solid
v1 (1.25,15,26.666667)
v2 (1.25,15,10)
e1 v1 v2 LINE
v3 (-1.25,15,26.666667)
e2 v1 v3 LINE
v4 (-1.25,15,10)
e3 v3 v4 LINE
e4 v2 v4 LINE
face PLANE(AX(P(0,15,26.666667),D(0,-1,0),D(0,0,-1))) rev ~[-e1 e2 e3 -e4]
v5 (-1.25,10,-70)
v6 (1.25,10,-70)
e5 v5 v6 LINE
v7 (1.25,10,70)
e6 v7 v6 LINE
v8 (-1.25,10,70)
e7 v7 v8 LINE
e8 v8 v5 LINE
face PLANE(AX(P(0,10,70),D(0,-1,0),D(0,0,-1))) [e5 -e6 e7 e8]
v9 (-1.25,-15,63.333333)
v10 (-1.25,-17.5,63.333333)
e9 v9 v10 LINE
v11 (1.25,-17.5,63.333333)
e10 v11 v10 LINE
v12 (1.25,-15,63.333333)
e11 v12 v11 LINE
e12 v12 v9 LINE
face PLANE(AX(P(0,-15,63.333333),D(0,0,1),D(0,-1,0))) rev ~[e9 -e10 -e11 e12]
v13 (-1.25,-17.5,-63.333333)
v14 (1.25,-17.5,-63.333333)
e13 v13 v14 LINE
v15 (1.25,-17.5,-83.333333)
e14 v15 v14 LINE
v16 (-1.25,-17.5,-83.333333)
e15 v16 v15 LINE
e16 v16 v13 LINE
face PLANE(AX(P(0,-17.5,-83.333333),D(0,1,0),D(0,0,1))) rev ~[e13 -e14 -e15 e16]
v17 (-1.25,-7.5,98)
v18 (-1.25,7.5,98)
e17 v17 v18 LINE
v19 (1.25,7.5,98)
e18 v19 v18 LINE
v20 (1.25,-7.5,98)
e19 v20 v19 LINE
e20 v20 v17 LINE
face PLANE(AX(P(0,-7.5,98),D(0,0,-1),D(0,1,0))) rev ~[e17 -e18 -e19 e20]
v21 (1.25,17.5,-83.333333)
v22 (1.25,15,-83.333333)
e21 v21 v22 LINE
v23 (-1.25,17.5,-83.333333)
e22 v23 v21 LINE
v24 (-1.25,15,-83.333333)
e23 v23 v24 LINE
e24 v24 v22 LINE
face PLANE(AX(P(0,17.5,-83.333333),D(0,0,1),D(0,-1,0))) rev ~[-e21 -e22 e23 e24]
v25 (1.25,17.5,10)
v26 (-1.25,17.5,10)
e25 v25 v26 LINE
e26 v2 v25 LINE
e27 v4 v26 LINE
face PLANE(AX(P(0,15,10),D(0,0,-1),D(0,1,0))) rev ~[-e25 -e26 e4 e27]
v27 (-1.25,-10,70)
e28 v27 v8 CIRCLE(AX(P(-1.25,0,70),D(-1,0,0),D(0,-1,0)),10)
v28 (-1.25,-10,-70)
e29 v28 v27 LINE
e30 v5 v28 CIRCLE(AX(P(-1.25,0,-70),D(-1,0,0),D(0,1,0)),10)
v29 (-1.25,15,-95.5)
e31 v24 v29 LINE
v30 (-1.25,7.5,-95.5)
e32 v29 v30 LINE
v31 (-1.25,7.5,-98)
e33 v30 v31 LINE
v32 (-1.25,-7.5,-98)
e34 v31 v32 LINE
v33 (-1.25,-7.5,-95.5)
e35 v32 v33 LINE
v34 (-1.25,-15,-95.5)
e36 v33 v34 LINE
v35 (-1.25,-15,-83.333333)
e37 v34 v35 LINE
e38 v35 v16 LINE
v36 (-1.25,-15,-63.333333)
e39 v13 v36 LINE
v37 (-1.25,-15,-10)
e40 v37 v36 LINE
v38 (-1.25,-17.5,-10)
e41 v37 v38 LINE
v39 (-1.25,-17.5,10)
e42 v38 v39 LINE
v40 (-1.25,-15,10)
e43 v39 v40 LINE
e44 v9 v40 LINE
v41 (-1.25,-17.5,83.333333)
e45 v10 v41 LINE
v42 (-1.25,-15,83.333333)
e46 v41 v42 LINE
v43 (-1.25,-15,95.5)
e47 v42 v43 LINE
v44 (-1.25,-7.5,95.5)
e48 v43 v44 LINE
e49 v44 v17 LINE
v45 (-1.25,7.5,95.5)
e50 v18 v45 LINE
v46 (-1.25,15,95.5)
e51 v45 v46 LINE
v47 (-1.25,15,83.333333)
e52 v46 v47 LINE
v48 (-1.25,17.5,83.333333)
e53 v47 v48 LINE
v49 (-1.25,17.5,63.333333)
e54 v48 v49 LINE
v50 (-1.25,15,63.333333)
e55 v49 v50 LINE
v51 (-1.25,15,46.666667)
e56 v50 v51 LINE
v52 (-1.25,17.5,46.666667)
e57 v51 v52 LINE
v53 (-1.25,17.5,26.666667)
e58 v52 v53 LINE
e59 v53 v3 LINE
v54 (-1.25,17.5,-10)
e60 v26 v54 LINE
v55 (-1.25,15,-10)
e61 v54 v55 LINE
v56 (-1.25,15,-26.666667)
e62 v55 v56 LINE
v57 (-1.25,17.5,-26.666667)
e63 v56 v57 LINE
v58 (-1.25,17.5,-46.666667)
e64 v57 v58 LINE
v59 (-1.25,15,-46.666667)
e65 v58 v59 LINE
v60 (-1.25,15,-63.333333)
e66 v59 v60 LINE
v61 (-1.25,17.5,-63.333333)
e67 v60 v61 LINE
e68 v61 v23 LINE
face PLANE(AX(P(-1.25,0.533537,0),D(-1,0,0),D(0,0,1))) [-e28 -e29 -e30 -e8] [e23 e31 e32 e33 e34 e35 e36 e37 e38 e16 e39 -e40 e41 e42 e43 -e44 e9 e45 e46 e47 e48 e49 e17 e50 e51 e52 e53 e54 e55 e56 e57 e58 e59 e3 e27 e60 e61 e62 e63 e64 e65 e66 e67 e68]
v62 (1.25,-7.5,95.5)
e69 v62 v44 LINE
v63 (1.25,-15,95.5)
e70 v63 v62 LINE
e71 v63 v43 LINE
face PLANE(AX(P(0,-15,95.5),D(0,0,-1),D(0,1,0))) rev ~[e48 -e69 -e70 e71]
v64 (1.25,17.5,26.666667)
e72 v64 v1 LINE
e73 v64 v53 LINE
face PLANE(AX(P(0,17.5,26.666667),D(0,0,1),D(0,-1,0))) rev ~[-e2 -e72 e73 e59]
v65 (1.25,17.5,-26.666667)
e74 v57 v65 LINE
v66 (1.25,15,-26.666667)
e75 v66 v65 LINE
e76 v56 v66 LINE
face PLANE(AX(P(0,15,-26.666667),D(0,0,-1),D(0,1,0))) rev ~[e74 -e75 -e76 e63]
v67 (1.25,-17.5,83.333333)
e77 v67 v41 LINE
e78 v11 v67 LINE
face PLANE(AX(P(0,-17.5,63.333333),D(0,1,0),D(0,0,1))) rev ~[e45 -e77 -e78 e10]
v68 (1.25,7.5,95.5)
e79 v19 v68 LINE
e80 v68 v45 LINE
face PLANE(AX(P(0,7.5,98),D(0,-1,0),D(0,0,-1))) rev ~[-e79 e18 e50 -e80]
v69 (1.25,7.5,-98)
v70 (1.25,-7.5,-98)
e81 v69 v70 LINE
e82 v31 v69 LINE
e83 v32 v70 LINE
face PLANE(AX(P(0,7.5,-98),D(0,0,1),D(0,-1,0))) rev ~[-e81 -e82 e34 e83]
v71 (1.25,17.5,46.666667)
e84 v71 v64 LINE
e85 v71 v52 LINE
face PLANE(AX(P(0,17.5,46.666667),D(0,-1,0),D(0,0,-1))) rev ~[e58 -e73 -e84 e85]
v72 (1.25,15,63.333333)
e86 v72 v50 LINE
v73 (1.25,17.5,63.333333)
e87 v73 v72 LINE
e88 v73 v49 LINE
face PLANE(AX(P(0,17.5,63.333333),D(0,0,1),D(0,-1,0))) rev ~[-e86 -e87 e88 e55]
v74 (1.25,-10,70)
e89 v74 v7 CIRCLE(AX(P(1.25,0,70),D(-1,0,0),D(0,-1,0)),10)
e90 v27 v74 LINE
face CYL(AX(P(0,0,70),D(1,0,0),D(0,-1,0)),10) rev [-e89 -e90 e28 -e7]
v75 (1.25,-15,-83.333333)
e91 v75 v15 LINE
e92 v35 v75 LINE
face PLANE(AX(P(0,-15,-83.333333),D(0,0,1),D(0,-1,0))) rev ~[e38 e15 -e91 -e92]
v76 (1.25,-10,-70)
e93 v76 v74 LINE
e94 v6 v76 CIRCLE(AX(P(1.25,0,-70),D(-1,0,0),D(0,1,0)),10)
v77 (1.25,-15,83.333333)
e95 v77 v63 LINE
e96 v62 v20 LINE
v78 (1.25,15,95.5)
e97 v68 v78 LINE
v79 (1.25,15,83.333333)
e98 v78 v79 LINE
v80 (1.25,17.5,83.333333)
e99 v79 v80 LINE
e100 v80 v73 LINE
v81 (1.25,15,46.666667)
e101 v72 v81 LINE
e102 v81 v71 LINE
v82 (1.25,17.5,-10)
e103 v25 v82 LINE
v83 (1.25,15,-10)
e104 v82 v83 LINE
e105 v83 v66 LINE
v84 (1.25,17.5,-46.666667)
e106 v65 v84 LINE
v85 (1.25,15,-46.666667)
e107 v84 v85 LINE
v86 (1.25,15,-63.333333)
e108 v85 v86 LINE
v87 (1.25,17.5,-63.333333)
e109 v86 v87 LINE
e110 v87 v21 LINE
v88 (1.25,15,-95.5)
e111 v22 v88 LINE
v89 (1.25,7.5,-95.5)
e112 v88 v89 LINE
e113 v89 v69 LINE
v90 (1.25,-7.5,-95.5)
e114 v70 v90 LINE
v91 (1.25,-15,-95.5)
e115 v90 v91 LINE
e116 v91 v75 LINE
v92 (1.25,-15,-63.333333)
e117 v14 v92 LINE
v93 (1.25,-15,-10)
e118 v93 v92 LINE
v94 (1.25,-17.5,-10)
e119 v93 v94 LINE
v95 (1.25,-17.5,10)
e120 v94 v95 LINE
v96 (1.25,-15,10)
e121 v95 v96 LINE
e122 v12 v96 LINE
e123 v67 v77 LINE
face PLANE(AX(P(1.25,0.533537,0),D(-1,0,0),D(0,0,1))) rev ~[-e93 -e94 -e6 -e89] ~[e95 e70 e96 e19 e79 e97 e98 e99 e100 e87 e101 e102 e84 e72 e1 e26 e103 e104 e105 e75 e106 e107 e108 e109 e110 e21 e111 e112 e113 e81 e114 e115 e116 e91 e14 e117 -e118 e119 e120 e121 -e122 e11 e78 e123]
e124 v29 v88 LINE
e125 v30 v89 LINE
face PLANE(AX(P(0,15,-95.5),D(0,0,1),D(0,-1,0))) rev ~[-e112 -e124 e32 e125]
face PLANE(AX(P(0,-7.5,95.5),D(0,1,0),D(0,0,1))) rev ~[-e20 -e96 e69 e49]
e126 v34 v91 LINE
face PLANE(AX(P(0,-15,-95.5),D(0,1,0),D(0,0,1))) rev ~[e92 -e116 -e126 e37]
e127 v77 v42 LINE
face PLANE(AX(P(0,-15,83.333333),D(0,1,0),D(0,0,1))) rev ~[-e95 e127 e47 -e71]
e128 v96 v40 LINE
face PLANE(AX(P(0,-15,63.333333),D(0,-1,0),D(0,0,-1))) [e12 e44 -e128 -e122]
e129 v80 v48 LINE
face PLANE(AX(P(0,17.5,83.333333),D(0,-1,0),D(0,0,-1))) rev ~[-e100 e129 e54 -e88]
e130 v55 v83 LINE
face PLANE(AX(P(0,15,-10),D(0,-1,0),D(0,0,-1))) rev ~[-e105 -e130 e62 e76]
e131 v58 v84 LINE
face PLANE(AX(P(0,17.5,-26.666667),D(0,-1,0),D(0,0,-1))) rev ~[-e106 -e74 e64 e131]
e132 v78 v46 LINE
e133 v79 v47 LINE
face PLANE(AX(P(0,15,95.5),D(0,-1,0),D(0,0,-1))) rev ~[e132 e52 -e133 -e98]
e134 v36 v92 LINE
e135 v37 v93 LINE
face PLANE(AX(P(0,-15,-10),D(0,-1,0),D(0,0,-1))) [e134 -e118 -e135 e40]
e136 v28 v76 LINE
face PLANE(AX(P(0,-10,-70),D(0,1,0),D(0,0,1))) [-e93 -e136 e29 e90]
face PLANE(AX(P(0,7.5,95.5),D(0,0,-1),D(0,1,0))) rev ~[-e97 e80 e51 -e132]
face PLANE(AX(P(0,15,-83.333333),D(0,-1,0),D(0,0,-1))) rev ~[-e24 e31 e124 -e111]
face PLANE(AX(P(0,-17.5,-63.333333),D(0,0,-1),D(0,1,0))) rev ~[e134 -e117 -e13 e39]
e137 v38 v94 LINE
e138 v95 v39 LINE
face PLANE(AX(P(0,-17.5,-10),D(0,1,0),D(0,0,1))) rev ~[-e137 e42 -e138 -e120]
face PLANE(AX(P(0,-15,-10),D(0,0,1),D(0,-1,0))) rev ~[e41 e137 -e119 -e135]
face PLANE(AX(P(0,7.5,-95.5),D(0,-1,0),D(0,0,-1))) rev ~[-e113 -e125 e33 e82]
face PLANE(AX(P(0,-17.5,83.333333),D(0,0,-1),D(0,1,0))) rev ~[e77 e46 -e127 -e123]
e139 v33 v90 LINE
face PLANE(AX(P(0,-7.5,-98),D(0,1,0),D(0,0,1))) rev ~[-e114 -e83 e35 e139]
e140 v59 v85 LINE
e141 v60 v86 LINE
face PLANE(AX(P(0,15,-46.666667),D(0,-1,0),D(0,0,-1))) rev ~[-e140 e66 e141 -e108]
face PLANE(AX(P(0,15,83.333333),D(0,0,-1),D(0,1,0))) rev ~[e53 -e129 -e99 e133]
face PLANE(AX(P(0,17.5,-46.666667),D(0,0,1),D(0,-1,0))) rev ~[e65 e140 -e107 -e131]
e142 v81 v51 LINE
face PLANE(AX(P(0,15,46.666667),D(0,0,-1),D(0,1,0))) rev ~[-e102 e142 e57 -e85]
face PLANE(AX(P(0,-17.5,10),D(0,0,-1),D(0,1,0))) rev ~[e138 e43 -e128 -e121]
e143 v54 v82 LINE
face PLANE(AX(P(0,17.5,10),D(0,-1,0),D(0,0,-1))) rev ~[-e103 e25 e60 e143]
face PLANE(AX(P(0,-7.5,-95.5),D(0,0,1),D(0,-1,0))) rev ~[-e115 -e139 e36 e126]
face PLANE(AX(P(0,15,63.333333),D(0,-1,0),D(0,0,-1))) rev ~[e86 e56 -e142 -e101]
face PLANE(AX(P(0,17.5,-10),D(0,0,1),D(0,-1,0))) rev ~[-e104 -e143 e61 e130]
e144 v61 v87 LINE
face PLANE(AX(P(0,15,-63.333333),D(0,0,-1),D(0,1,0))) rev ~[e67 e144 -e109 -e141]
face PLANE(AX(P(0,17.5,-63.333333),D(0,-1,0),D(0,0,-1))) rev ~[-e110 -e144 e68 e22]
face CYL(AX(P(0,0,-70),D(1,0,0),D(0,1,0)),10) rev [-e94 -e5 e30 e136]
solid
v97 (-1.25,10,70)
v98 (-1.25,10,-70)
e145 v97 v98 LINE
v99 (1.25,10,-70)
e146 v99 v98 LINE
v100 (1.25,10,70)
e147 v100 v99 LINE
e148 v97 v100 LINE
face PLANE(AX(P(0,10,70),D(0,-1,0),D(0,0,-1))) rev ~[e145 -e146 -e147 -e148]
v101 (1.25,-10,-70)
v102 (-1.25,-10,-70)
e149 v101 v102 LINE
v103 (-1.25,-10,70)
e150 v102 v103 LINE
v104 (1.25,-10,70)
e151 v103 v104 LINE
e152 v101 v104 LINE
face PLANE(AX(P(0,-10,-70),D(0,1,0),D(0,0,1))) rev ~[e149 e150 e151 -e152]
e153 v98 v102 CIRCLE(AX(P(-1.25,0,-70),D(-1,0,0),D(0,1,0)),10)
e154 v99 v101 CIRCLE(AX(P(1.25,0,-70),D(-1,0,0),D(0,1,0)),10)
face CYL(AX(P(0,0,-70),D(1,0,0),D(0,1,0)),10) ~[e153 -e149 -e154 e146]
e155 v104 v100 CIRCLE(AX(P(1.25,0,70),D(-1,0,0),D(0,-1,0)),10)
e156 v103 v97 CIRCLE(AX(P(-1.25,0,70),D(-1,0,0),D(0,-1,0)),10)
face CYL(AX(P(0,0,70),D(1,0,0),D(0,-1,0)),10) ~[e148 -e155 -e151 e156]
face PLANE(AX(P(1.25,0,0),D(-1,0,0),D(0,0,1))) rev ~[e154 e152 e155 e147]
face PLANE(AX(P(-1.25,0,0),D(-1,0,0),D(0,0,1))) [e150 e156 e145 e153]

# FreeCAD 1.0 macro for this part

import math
import FreeCAD as App
import Part
import Sketcher
from FreeCAD import Vector


def add_polygon(sketch, points):
    """Adds a closed chain of lines whose ends are joined by coincident constraints."""
    first, n = sketch.GeometryCount, len(points)
    for a, b in zip(points, points[1:] + points[:1]):
        sketch.addGeometry(Part.LineSegment(App.Vector(*a, 0), App.Vector(*b, 0)), False)
    for i in range(n):
        sketch.addConstraint(Sketcher.Constraint("Coincident", first + i, 2, first + (i + 1) % n, 1))

doc = App.newDocument("Part")
body = doc.addObject("PartDesign::Body", "Body")

# Sketch on YZ plane
sketch1 = doc.addObject("Sketcher::SketchObject", "Sketch")
body.addObject(sketch1)
sketch1.AttachmentSupport = (doc.YZ_Plane, [""])
sketch1.MapMode = "FlatFace"
add_polygon(sketch1, [(-17.5, 10), (-17.5, -10), (-15, -10), (-15, -63.333333), (-17.5, -63.333333), (-17.5, -83.333333), (-15, -83.333333), (-15, -95.5), (-7.5, -95.5), (-7.5, -98), (7.5, -98), (7.5, -95.5), (15, -95.5), (15, -83.333333), (17.5, -83.333333), (17.5, -63.333333), (15, -63.333333), (15, -46.666667), (17.5, -46.666667), (17.5, -26.666667), (15, -26.666667), (15, -10), (17.5, -10), (17.5, 10), (15, 10), (15, 26.666667), (17.5, 26.666667), (17.5, 46.666667), (15, 46.666667), (15, 63.333333), (17.5, 63.333333), (17.5, 83.333333), (15, 83.333333), (15, 95.5), (7.5, 95.5), (7.5, 98), (-7.5, 98), (-7.5, 95.5), (-15, 95.5), (-15, 83.333333), (-17.5, 83.333333), (-17.5, 63.333333), (-15, 63.333333), (-15, 10)])  # lines 0-43
sketch1.addGeometry(Part.LineSegment(Vector(10, 70, 0), Vector(10, -70, 0)), False)  # 44
sketch1.addGeometry(Part.ArcOfCircle(Part.Circle(Vector(0, -70, 0), Vector(0, 0, 1), 10), math.radians(180), math.radians(360)), False)  # 45
sketch1.addGeometry(Part.LineSegment(Vector(-10, -70, 0), Vector(-10, 70, 0)), False)  # 46
sketch1.addGeometry(Part.ArcOfCircle(Part.Circle(Vector(0, 70, 0), Vector(0, 0, 1), 10), math.radians(0), math.radians(180)), False)  # 47
sketch1.addConstraint(Sketcher.Constraint("Tangent", 44, 2, 45, 2))
sketch1.addConstraint(Sketcher.Constraint("Tangent", 45, 1, 46, 1))
sketch1.addConstraint(Sketcher.Constraint("Tangent", 46, 2, 47, 2))
sketch1.addConstraint(Sketcher.Constraint("Tangent", 47, 1, 44, 1))
sketch1.addConstraint(Sketcher.Constraint("Vertical", 0))
sketch1.addConstraint(Sketcher.Constraint("Horizontal", 1))
sketch1.addConstraint(Sketcher.Constraint("Vertical", 2))
sketch1.addConstraint(Sketcher.Constraint("Horizontal", 3))
sketch1.addConstraint(Sketcher.Constraint("Vertical", 4))
sketch1.addConstraint(Sketcher.Constraint("Horizontal", 5))
sketch1.addConstraint(Sketcher.Constraint("Vertical", 6))
sketch1.addConstraint(Sketcher.Constraint("Horizontal", 7))
sketch1.addConstraint(Sketcher.Constraint("Vertical", 8))
sketch1.addConstraint(Sketcher.Constraint("Horizontal", 9))
sketch1.addConstraint(Sketcher.Constraint("Vertical", 10))
sketch1.addConstraint(Sketcher.Constraint("Horizontal", 11))
sketch1.addConstraint(Sketcher.Constraint("Vertical", 12))
sketch1.addConstraint(Sketcher.Constraint("Horizontal", 13))
sketch1.addConstraint(Sketcher.Constraint("Vertical", 14))
sketch1.addConstraint(Sketcher.Constraint("Horizontal", 15))
sketch1.addConstraint(Sketcher.Constraint("Vertical", 16))
sketch1.addConstraint(Sketcher.Constraint("Horizontal", 17))
sketch1.addConstraint(Sketcher.Constraint("Vertical", 18))
sketch1.addConstraint(Sketcher.Constraint("Horizontal", 19))
sketch1.addConstraint(Sketcher.Constraint("Vertical", 20))
sketch1.addConstraint(Sketcher.Constraint("Horizontal", 21))
sketch1.addConstraint(Sketcher.Constraint("Vertical", 22))
sketch1.addConstraint(Sketcher.Constraint("Horizontal", 23))
sketch1.addConstraint(Sketcher.Constraint("Vertical", 24))
sketch1.addConstraint(Sketcher.Constraint("Horizontal", 25))
sketch1.addConstraint(Sketcher.Constraint("Vertical", 26))
sketch1.addConstraint(Sketcher.Constraint("Horizontal", 27))
sketch1.addConstraint(Sketcher.Constraint("Vertical", 28))
sketch1.addConstraint(Sketcher.Constraint("Horizontal", 29))
sketch1.addConstraint(Sketcher.Constraint("Vertical", 30))
sketch1.addConstraint(Sketcher.Constraint("Horizontal", 31))
sketch1.addConstraint(Sketcher.Constraint("Vertical", 32))
sketch1.addConstraint(Sketcher.Constraint("Horizontal", 33))
sketch1.addConstraint(Sketcher.Constraint("Vertical", 34))
sketch1.addConstraint(Sketcher.Constraint("Horizontal", 35))
sketch1.addConstraint(Sketcher.Constraint("Vertical", 36))
sketch1.addConstraint(Sketcher.Constraint("Horizontal", 37))
sketch1.addConstraint(Sketcher.Constraint("Vertical", 38))
sketch1.addConstraint(Sketcher.Constraint("Horizontal", 39))
sketch1.addConstraint(Sketcher.Constraint("Vertical", 40))
sketch1.addConstraint(Sketcher.Constraint("Horizontal", 41))
sketch1.addConstraint(Sketcher.Constraint("Vertical", 42))
sketch1.addConstraint(Sketcher.Constraint("Horizontal", 43))
sketch1.addConstraint(Sketcher.Constraint("Vertical", 44))
sketch1.addConstraint(Sketcher.Constraint("Vertical", 46))
sketch1.addConstraint(Sketcher.Constraint("Symmetric", 45, 3, 47, 3, -1, 1))
sketch1.addConstraint(Sketcher.Constraint("Symmetric", 0, 2, 22, 2, -1, 1))
sketch1.addConstraint(Sketcher.Constraint("Symmetric", 2, 2, 28, 2, -1, 1))
sketch1.addConstraint(Sketcher.Constraint("Symmetric", 4, 2, 30, 2, -1, 1))
sketch1.addConstraint(Sketcher.Constraint("Symmetric", 6, 2, 32, 2, -1, 1))
sketch1.addConstraint(Sketcher.Constraint("Symmetric", 8, 2, 34, 2, -1, 1))
sketch1.addConstraint(Sketcher.Constraint("Symmetric", 10, 2, 36, 2, -1, 1))
sketch1.addConstraint(Sketcher.Constraint("Symmetric", 12, 2, 38, 2, -1, 1))
sketch1.addConstraint(Sketcher.Constraint("Symmetric", 14, 2, 40, 2, -1, 1))
sketch1.addConstraint(Sketcher.Constraint("Symmetric", 20, 2, 42, 2, -1, 1))
sketch1.addConstraint(Sketcher.Constraint("Symmetric", 7, 2, 10, 2, -2))
sketch1.addConstraint(Sketcher.Constraint("Symmetric", 5, 2, 12, 2, -2))
sketch1.addConstraint(Sketcher.Constraint("Symmetric", 3, 2, 14, 2, -2))
sketch1.addConstraint(Sketcher.Constraint("Symmetric", 1, 2, 20, 2, -2))
sketch1.addConstraint(Sketcher.Constraint("Symmetric", 19, 2, 24, 2, -1))
sketch1.addConstraint(Sketcher.Constraint("Symmetric", 17, 2, 26, 2, -1))
sketch1.addConstraint(Sketcher.Constraint("Vertical", 0, 2, 3, 2))
sketch1.addConstraint(Sketcher.Constraint("Vertical", 2, 2, 5, 2))
sketch1.addConstraint(Sketcher.Constraint("Vertical", 12, 2, 15, 2))
sketch1.addConstraint(Sketcher.Constraint("Vertical", 14, 2, 17, 2))
sketch1.addConstraint(Sketcher.Constraint("Equal", 0, 4))
sketch1.addConstraint(Sketcher.Constraint("Equal", 43, 8))
sketch1.addConstraint(Sketcher.Constraint("Equal", 14, 18))
sketch1.addConstraint(Sketcher.Constraint("Equal", 16, 20))
sketch1.addConstraint(Sketcher.Constraint("Radius", 45, 10.0))
sketch1.addConstraint(Sketcher.Constraint("DistanceX", 9, 1, 9, 2, 15.0))
sketch1.addConstraint(Sketcher.Constraint("DistanceY", 0, 2, 0, 1, 20.0))
sketch1.addConstraint(Sketcher.Constraint("DistanceY", 44, 2, 44, 1, 140.0))
sketch1.addConstraint(Sketcher.Constraint("DistanceX", 1, 1, 1, 2, 2.5))
sketch1.addConstraint(Sketcher.Constraint("DistanceX", 7, 1, 7, 2, 7.5))
sketch1.addConstraint(Sketcher.Constraint("DistanceY", 8, 2, -1, 1, 98.0))
sketch1.addConstraint(Sketcher.Constraint("DistanceY", 2, 2, 2, 1, 53.333333))
pad1 = doc.addObject("PartDesign::Pad", "Pad")
body.addObject(pad1)
pad1.Profile = sketch1
pad1.Length = 2.5
pad1.Midplane = True
body2 = doc.addObject("PartDesign::Body", "Body001")

# Sketch on YZ plane
sketch2 = doc.addObject("Sketcher::SketchObject", "Sketch001")
body2.addObject(sketch2)
sketch2.AttachmentSupport = (doc.getObject("YZ_Plane001"), [""])
sketch2.MapMode = "FlatFace"
sketch2.addGeometry(Part.LineSegment(Vector(10, -70, 0), Vector(10, 70, 0)), False)
sketch2.addGeometry(Part.ArcOfCircle(Part.Circle(Vector(0, 70, 0), Vector(0, 0, 1), 10), math.radians(0), math.radians(180)), False)
sketch2.addGeometry(Part.LineSegment(Vector(-10, 70, 0), Vector(-10, -70, 0)), False)
sketch2.addGeometry(Part.ArcOfCircle(Part.Circle(Vector(0, -70, 0), Vector(0, 0, 1), 10), math.radians(180), math.radians(360)), False)
sketch2.addConstraint(Sketcher.Constraint("Tangent", 0, 2, 1, 1))
sketch2.addConstraint(Sketcher.Constraint("Tangent", 1, 2, 2, 1))
sketch2.addConstraint(Sketcher.Constraint("Tangent", 2, 2, 3, 1))
sketch2.addConstraint(Sketcher.Constraint("Tangent", 3, 2, 0, 1))
sketch2.addConstraint(Sketcher.Constraint("Vertical", 0))
sketch2.addConstraint(Sketcher.Constraint("Vertical", 2))
sketch2.addConstraint(Sketcher.Constraint("Symmetric", 1, 3, 3, 3, -1, 1))
sketch2.addConstraint(Sketcher.Constraint("Radius", 1, 10.0))
sketch2.addConstraint(Sketcher.Constraint("DistanceY", 0, 1, 0, 2, 140.0))
pad2 = doc.addObject("PartDesign::Pad", "Pad001")
body2.addObject(pad2)
pad2.Profile = sketch2
pad2.Length = 2.5
pad2.Midplane = True

doc.recompute()
